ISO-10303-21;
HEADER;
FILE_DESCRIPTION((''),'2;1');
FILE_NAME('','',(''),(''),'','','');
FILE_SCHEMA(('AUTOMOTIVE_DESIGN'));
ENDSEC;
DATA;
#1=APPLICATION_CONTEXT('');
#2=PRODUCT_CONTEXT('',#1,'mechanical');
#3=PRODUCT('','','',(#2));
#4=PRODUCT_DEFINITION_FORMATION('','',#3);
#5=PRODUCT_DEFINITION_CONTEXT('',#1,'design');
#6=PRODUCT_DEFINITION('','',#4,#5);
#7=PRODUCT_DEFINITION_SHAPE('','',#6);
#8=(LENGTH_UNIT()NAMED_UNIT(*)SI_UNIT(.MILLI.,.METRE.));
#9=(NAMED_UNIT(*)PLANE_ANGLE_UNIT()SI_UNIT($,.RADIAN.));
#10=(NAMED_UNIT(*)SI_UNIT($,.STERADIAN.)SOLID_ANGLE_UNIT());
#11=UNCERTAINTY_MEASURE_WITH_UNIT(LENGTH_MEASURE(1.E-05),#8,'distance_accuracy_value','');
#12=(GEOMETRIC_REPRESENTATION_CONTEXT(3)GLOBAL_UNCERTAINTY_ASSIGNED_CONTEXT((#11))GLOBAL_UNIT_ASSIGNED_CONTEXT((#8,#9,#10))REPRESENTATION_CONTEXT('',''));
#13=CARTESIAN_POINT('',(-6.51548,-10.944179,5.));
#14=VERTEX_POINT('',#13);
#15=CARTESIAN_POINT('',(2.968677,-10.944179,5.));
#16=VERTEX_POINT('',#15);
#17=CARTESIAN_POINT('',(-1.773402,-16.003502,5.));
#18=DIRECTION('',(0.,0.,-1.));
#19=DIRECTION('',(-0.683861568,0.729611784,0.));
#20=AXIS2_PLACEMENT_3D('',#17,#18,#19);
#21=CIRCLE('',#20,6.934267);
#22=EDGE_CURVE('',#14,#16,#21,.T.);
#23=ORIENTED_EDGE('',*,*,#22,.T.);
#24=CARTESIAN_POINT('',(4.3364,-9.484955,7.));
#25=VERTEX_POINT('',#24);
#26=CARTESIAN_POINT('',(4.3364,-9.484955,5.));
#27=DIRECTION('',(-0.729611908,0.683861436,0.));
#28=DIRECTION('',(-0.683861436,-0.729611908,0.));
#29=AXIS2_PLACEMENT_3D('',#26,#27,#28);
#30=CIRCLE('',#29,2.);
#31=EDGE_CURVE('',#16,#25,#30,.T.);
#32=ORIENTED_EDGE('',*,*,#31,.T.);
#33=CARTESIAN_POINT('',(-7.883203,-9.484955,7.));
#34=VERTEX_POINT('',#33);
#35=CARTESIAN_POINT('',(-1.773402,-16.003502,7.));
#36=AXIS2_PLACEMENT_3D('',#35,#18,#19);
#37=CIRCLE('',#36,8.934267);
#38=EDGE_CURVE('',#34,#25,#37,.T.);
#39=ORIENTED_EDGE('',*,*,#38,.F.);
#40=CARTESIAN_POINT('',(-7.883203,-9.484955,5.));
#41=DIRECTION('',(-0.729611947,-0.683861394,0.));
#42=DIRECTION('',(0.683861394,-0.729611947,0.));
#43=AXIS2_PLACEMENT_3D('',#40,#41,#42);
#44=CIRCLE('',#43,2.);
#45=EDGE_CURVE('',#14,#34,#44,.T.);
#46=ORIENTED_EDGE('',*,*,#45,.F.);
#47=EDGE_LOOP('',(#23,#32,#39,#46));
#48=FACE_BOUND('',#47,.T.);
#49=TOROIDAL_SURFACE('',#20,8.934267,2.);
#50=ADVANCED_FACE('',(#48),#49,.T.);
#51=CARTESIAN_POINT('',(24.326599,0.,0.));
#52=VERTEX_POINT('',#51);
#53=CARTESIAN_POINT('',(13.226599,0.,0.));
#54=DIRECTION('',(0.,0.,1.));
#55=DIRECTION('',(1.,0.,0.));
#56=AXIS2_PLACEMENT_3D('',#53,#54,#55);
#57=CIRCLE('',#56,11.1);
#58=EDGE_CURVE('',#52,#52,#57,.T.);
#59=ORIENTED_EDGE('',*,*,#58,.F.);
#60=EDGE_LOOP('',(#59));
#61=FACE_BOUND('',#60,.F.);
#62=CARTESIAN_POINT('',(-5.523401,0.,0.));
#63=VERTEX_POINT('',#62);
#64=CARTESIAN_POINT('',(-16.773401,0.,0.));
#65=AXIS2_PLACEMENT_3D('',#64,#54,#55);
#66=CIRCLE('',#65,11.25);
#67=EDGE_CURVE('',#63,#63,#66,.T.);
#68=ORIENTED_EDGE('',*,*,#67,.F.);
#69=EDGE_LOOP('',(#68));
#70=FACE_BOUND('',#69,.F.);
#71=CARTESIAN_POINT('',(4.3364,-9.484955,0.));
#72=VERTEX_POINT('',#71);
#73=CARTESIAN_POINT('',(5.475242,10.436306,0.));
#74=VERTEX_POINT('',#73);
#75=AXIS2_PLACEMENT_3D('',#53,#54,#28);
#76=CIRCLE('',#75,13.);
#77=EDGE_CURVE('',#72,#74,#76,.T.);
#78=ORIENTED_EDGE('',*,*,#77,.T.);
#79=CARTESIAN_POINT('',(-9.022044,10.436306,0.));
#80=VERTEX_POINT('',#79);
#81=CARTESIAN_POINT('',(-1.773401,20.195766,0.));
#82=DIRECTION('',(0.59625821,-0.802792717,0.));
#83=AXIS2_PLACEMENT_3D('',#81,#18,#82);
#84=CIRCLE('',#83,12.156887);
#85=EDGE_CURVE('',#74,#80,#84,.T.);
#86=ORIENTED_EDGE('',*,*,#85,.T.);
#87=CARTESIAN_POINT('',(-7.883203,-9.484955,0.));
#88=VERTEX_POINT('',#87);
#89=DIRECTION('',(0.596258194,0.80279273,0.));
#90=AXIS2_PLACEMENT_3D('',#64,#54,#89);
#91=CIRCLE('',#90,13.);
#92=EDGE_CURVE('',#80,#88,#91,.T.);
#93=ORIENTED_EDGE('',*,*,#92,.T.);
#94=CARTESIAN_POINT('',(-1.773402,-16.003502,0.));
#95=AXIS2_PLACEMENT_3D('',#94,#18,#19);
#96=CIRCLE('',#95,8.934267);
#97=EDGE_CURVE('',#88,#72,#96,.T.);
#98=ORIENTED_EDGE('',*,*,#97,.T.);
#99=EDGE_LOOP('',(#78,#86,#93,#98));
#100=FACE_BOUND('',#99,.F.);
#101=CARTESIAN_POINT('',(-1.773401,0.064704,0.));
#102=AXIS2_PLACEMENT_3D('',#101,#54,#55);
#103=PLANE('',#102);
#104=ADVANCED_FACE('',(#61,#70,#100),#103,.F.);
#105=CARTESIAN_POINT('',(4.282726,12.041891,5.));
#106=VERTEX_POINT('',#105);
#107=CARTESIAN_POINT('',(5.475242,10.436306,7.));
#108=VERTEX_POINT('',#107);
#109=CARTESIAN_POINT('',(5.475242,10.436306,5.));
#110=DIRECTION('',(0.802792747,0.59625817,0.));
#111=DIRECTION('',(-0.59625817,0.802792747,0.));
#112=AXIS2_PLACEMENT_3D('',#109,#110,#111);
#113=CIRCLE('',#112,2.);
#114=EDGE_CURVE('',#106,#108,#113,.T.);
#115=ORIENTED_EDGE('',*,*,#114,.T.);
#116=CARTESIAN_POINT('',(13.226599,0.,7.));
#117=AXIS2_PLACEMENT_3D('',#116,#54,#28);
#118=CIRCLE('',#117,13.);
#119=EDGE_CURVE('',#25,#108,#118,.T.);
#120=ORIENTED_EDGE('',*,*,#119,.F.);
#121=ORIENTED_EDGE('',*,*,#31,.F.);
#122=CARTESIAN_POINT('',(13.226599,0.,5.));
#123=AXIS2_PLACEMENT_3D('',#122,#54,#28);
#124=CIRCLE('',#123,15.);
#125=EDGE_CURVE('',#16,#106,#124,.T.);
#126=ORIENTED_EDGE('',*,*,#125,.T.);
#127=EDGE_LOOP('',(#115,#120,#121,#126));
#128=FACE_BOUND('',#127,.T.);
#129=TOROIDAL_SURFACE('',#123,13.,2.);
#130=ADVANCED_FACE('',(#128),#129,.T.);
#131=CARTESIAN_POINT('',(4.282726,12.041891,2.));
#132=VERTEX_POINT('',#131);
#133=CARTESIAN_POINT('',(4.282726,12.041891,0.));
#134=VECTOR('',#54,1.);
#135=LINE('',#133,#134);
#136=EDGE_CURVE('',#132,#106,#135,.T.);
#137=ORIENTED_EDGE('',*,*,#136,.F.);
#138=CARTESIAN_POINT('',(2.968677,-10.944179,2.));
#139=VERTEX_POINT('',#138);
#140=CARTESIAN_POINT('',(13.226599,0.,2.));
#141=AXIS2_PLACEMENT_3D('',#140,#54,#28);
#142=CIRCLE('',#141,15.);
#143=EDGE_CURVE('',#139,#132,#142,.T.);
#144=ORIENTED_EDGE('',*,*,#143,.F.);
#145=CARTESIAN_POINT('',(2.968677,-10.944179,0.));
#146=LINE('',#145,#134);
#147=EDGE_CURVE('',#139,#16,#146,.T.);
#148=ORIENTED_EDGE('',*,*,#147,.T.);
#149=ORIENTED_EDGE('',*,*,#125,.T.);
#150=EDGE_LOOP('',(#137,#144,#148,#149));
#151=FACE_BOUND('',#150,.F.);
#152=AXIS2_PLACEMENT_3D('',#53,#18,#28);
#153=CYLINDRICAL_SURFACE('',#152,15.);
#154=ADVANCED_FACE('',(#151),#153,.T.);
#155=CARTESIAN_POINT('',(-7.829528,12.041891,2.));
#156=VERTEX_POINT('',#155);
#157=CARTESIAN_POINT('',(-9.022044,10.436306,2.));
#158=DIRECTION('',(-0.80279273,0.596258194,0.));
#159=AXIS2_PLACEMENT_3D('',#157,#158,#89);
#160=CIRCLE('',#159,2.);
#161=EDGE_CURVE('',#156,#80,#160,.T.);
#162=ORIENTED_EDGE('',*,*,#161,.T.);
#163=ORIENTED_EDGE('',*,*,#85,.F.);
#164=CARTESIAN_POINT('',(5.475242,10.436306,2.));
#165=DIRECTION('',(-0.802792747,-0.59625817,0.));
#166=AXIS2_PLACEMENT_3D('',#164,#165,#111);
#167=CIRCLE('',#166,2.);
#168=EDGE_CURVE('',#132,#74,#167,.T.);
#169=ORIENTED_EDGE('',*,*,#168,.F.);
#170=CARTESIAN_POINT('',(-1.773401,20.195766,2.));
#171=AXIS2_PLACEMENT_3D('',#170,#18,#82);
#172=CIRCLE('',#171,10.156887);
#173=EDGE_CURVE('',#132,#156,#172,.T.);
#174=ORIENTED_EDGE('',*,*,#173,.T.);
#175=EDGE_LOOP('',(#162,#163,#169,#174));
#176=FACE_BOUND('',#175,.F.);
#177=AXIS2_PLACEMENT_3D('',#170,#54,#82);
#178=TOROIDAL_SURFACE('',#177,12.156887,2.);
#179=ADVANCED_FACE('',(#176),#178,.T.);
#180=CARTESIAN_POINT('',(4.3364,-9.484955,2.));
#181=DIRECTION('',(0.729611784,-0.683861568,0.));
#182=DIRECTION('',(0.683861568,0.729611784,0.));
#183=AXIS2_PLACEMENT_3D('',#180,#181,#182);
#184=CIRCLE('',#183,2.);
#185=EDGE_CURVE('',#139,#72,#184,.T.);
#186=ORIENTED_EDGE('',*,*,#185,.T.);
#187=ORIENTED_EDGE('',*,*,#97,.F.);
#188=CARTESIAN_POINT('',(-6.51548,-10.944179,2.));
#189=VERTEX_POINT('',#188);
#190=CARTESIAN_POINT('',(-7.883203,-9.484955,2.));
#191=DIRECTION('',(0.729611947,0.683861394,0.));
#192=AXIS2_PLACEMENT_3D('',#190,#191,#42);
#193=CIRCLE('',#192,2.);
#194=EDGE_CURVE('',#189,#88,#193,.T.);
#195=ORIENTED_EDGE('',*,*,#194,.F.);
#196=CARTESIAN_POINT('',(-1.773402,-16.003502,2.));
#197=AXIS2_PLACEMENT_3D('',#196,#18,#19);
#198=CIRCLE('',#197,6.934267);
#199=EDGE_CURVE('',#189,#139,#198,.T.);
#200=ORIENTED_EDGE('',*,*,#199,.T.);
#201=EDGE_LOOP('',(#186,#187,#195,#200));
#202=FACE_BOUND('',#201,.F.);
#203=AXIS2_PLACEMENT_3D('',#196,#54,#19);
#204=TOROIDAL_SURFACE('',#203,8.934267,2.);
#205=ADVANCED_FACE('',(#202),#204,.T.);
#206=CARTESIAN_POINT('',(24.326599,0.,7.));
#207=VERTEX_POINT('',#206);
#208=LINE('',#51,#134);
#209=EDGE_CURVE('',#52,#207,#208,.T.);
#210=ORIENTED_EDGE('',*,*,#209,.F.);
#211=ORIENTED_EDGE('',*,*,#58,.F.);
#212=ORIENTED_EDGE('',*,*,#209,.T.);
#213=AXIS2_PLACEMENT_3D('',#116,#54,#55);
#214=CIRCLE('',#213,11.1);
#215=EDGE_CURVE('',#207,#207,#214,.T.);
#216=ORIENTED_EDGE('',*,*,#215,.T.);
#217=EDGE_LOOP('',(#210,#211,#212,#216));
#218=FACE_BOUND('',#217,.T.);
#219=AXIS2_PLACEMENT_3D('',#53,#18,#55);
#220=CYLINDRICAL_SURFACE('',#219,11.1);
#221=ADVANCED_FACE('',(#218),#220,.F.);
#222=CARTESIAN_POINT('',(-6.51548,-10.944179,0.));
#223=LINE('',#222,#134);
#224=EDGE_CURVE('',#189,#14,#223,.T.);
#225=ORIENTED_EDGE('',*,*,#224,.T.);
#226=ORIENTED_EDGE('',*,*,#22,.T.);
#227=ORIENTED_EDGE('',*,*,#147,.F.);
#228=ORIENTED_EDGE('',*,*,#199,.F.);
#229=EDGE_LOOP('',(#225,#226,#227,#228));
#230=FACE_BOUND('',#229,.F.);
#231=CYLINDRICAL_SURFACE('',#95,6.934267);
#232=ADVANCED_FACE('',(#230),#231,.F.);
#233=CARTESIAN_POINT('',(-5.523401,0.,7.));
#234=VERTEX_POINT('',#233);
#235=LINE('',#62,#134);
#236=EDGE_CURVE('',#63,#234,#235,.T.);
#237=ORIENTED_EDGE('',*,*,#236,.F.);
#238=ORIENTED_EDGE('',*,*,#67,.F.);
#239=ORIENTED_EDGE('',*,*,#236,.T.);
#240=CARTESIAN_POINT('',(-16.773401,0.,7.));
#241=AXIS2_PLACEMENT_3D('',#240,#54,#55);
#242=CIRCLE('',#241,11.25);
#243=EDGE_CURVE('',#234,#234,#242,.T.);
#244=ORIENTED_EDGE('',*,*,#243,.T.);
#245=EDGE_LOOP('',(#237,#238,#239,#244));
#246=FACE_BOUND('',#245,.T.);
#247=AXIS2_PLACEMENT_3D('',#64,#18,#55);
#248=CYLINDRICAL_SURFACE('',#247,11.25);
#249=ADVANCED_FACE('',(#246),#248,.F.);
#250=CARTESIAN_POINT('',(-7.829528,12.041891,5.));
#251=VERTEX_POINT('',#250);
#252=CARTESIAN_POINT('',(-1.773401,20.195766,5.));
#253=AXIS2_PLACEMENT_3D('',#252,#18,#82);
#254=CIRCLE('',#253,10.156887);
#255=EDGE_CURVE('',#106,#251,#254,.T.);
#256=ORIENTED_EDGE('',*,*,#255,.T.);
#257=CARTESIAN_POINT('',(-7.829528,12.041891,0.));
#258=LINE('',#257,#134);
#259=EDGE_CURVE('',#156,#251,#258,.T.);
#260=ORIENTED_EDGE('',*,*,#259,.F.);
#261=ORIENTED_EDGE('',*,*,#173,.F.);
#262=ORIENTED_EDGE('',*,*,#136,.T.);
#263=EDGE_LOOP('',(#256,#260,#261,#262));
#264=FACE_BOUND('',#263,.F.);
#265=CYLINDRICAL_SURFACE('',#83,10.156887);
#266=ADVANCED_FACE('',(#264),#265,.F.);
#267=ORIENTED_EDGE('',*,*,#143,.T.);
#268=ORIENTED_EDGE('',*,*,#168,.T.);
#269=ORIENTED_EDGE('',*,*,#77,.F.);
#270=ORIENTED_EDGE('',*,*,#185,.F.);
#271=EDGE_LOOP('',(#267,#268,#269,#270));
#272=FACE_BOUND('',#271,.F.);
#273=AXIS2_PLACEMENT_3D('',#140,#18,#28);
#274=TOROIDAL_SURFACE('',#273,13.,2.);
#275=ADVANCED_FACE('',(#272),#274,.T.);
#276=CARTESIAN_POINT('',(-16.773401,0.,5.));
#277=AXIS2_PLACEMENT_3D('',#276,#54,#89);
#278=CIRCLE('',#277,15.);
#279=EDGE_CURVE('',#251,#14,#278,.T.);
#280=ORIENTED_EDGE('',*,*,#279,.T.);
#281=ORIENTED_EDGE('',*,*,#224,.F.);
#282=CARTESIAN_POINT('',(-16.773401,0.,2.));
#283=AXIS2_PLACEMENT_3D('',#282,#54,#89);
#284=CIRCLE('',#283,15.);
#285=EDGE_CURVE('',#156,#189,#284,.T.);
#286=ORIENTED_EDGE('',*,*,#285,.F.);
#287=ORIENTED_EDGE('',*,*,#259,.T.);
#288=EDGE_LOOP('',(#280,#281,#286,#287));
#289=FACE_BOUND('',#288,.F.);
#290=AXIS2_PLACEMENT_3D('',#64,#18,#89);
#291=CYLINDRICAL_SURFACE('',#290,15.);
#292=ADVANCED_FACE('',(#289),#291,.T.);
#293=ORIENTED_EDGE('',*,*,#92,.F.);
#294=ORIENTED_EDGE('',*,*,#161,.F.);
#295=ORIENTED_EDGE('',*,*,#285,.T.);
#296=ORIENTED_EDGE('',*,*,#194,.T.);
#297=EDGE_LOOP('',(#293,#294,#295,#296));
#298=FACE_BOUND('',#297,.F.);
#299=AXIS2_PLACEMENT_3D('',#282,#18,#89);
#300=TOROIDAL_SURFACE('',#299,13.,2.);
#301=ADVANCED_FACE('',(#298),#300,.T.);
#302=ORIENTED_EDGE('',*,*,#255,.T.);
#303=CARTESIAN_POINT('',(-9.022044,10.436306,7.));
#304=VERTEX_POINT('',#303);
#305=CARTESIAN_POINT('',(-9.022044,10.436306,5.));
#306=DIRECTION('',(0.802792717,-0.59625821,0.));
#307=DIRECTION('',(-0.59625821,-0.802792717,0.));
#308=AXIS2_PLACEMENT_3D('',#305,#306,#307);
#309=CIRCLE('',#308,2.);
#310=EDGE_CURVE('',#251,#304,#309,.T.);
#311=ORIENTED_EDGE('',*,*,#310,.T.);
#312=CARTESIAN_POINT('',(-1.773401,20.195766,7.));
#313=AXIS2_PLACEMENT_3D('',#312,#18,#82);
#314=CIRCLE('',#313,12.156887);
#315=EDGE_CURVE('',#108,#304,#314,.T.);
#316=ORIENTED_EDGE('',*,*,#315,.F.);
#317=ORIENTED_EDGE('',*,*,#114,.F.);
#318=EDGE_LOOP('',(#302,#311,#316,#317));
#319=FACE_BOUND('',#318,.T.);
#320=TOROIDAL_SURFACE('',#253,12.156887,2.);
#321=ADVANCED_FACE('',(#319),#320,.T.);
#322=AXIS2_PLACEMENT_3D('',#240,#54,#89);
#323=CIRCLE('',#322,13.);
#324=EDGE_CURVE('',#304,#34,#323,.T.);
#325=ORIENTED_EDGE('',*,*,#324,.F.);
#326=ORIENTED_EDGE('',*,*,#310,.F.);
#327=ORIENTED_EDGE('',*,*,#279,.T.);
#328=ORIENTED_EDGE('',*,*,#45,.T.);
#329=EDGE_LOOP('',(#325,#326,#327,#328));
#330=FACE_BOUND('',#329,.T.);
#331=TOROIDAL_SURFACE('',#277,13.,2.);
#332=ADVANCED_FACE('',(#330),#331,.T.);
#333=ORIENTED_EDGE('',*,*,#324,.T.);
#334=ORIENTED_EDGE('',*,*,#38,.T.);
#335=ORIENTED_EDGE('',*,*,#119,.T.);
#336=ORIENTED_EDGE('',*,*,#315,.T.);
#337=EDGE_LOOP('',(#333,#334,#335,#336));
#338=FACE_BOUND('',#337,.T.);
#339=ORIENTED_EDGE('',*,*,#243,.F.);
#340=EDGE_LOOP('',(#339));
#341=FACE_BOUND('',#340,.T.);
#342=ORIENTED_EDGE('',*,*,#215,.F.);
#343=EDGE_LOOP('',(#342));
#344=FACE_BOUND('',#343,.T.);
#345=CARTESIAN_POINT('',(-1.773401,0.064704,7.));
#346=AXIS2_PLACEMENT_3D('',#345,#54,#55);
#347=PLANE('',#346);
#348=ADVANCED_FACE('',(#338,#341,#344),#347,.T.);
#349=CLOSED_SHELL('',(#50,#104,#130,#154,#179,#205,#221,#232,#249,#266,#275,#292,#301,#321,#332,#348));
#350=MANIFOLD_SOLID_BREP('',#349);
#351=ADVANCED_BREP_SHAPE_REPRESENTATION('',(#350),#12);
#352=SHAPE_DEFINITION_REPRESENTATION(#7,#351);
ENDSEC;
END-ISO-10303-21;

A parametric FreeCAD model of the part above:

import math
import FreeCAD as App
import Part
import Sketcher


def edges_at(feature, points):
    """Names of the edges that pass closest to the given points."""
    edges = feature.Shape.Edges
    near = lambda p: min(range(len(edges)), key=lambda i: edges[i].distToShape(Part.Vertex(*p))[0])
    return sorted({f"Edge{near(p) + 1}" for p in points})

doc = App.newDocument("Part")
params = doc.addObject("Spreadsheet::Sheet", "Params")
for row, (alias, value) in enumerate([
    ("sketch1_radius", "15 mm"),
    ("sketch1_diameter", "22.5 mm"),
    ("sketch1_diameter2", "22.2 mm"),
    ("pad1_length", "7 mm"),
    ("fillet_radius", "2 mm"),
], start=1):
    params.set(f"A{row}", alias)
    params.set(f"B{row}", "=" + value)
    params.setAlias(f"B{row}", alias)

body = doc.addObject("PartDesign::Body", "Body")

# Sketch on XY plane
sketch1 = body.newObject("Sketcher::SketchObject", "Sketch")
sketch1.AttachmentSupport = (doc.getObject("XY_Plane"), [""])
sketch1.MapMode = "FlatFace"
sketch1.addGeometry([
    Part.ArcOfCircle(Part.Circle(App.Vector(-2, 20, 0), App.Vector(0, 0, 1), 10), math.radians(-127), math.radians(-53)),  # 0
    Part.ArcOfCircle(Part.Circle(App.Vector(-17, 0, 0), App.Vector(0, 0, 1), 15), math.radians(53), math.radians(313)),  # 1
    Part.ArcOfCircle(Part.Circle(App.Vector(-2, -16, 0), App.Vector(0, 0, 1), 7), math.radians(47), math.radians(133)),  # 2
    Part.ArcOfCircle(Part.Circle(App.Vector(13, 0, 0), App.Vector(0, 0, 1), 15), math.radians(-133), math.radians(127)),  # 3
    Part.Circle(App.Vector(-17, 0, 0), App.Vector(0, 0, 1), 11),  # 4
    Part.Circle(App.Vector(13, 0, 0), App.Vector(0, 0, 1), 11),  # 5
], False)
sketch1.addConstraint([
    Sketcher.Constraint("Tangent", 0, 1, 1, 1),
    Sketcher.Constraint("Tangent", 1, 2, 2, 2),
    Sketcher.Constraint("Tangent", 2, 1, 3, 1),
    Sketcher.Constraint("Tangent", 3, 2, 0, 2),
    Sketcher.Constraint("Coincident", 4, 3, 1, 3),
    Sketcher.Constraint("Coincident", 5, 3, 3, 3),
    Sketcher.Constraint("Equal", 1, 3),
    Sketcher.Constraint("PointOnObject", 1, 3, -1),
    Sketcher.Constraint("PointOnObject", 3, 3, -1),
    Sketcher.Constraint("Radius", 1, 15.0),
    Sketcher.Constraint("Diameter", 4, 22.5),
    Sketcher.Constraint("Diameter", 5, 22.2),
    Sketcher.Constraint("DistanceX", 1, 3, 0, 3, 15.0),
    Sketcher.Constraint("Radius", 0, 10.156887),
    Sketcher.Constraint("Radius", 2, 6.934267),
    Sketcher.Constraint("DistanceX", 0, 3, -1, 1, 1.773401),
])
sketch1.setExpression("Constraints[9]", "Params.sketch1_radius")
sketch1.setExpression("Constraints[10]", "Params.sketch1_diameter")
sketch1.setExpression("Constraints[11]", "Params.sketch1_diameter2")
pad1 = body.newObject("PartDesign::Pad", "Pad")
pad1.Profile = sketch1
pad1.setExpression("Length", "Params.pad1_length")
doc.recompute()

fillet = body.newObject("PartDesign::Fillet", "Fillet")
fillet.Base = (pad1, edges_at(pad1, [(-31.749, -0.856, 0), (28.202, -0.856, 7)]))
fillet.setExpression("Radius", "Params.fillet_radius")

doc.recompute()
